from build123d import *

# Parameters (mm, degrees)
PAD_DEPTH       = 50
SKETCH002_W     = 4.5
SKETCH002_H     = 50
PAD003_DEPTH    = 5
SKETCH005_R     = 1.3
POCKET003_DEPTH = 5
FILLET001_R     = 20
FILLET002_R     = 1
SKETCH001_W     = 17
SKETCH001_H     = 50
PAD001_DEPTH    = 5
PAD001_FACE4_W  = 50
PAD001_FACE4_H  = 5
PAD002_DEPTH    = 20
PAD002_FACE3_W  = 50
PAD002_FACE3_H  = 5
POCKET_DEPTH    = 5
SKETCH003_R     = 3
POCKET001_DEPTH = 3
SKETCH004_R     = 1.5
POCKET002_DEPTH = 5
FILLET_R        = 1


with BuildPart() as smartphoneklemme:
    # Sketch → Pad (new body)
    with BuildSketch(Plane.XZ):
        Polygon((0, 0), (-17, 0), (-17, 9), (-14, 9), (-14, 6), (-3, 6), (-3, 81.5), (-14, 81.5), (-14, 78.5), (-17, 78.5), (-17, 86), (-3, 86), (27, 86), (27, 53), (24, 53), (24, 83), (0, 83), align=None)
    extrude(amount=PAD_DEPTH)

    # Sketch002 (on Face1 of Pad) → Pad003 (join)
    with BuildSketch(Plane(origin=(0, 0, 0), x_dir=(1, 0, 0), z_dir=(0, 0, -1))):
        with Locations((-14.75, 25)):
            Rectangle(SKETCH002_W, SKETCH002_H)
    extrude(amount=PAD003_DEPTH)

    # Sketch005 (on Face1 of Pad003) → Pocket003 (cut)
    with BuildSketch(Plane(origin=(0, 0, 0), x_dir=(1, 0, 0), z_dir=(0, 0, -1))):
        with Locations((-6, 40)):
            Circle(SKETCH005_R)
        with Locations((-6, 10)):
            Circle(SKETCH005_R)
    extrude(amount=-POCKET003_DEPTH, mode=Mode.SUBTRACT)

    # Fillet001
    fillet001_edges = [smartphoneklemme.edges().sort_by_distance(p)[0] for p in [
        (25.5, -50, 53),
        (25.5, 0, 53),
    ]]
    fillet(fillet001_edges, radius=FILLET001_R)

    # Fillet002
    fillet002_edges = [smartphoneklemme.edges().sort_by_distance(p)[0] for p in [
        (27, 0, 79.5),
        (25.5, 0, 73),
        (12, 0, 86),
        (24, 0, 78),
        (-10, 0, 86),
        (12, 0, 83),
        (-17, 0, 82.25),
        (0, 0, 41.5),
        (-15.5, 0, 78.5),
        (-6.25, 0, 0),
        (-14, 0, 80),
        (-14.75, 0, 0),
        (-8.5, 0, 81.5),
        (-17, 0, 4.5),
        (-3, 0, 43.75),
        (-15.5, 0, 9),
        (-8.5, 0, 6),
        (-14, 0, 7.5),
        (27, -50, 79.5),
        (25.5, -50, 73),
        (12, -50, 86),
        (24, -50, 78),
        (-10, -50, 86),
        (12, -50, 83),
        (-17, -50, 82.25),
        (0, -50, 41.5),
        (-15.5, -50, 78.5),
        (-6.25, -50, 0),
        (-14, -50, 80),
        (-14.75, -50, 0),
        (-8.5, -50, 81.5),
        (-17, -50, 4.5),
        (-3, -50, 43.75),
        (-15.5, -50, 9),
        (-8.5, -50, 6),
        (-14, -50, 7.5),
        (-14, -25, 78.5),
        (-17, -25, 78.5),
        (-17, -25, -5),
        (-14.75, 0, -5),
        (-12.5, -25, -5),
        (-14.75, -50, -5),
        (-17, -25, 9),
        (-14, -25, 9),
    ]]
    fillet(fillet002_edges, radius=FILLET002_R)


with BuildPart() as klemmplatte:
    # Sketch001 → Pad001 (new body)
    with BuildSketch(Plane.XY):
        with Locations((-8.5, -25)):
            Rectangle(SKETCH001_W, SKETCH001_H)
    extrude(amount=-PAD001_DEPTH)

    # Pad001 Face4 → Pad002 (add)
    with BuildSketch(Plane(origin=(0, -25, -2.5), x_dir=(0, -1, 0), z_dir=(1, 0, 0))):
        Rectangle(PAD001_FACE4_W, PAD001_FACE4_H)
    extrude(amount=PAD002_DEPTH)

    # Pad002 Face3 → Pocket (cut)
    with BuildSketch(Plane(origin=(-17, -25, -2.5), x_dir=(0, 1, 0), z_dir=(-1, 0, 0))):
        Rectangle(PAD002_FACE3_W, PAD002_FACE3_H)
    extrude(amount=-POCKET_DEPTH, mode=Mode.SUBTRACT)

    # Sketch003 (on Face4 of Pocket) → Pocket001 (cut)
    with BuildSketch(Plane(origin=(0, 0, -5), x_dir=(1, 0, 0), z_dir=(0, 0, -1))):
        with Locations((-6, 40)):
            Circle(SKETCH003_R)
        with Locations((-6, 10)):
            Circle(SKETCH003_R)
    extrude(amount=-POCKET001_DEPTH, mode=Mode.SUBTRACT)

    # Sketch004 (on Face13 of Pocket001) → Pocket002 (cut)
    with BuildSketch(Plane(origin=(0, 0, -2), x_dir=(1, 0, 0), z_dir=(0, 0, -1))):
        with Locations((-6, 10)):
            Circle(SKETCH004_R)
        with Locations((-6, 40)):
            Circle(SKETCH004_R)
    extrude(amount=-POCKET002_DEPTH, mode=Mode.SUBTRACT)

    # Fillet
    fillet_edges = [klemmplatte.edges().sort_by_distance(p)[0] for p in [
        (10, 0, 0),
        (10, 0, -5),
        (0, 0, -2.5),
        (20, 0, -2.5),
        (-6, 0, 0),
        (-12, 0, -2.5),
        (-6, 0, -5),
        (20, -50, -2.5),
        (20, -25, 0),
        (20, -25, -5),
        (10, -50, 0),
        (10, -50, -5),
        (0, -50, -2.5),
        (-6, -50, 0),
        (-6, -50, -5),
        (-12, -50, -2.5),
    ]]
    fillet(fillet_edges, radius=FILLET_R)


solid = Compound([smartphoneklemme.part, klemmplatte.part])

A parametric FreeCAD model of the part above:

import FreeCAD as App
import Part
import Sketcher

V = App.Vector
Q = App.Units.Quantity


def edges_at(feature, points):
    """Names of the edges that pass closest to the given points."""
    edges = feature.Shape.Edges
    near = lambda p: min(range(len(edges)), key=lambda i: edges[i].distToShape(Part.Vertex(*p))[0])
    return sorted({f"Edge{near(p) + 1}" for p in points})

doc = App.newDocument("Part")
body = doc.addObject("PartDesign::Body", "Body")

sketch1 = body.newObject("Sketcher::SketchObject", "Sketch")
sketch1.AttachmentSupport = (doc.getObject("XZ_Plane"), [""])
sketch1.MapMode = "FlatFace"
sketch1.addGeometry(Part.LineSegment(V(-17, 0, 0), V(0, 0, 0)), False)
sketch1.addGeometry(Part.LineSegment(V(0, 0, 0), V(0, 83, 0)), False)
sketch1.addGeometry(Part.LineSegment(V(0, 83, 0), V(24, 83, 0)), False)
sketch1.addGeometry(Part.LineSegment(V(24, 83, 0), V(24, 53, 0)), False)
sketch1.addGeometry(Part.LineSegment(V(24, 53, 0), V(27, 53, 0)), False)
sketch1.addGeometry(Part.LineSegment(V(27, 53, 0), V(27, 86, 0)), False)
sketch1.addGeometry(Part.LineSegment(V(27, 86, 0), V(-17, 86, 0)), False)
sketch1.addGeometry(Part.LineSegment(V(-17, 86, 0), V(-17, 78.5, 0)), False)
sketch1.addGeometry(Part.LineSegment(V(-17, 78.5, 0), V(-14, 78.5, 0)), False)
sketch1.addGeometry(Part.LineSegment(V(-14, 78.5, 0), V(-14, 81.5, 0)), False)
sketch1.addGeometry(Part.LineSegment(V(-14, 81.5, 0), V(-3, 81.5, 0)), False)
sketch1.addGeometry(Part.LineSegment(V(-3, 81.5, 0), V(-3, 6, 0)), False)
sketch1.addGeometry(Part.LineSegment(V(-3, 6, 0), V(-14, 6, 0)), False)
sketch1.addGeometry(Part.LineSegment(V(-14, 6, 0), V(-14, 9, 0)), False)
sketch1.addGeometry(Part.LineSegment(V(-14, 9, 0), V(-17, 9, 0)), False)
sketch1.addGeometry(Part.LineSegment(V(-17, 9, 0), V(-17, 0, 0)), False)
sketch1.addConstraint(Sketcher.Constraint("Coincident", 0, 2, 1, 1))
sketch1.addConstraint(Sketcher.Constraint("Coincident", 1, 2, 2, 1))
sketch1.addConstraint(Sketcher.Constraint("Coincident", 2, 2, 3, 1))
sketch1.addConstraint(Sketcher.Constraint("Coincident", 3, 2, 4, 1))
sketch1.addConstraint(Sketcher.Constraint("Coincident", 4, 2, 5, 1))
sketch1.addConstraint(Sketcher.Constraint("Coincident", 5, 2, 6, 1))
sketch1.addConstraint(Sketcher.Constraint("Coincident", 6, 2, 7, 1))
sketch1.addConstraint(Sketcher.Constraint("Coincident", 7, 2, 8, 1))
sketch1.addConstraint(Sketcher.Constraint("Coincident", 8, 2, 9, 1))
sketch1.addConstraint(Sketcher.Constraint("Coincident", 9, 2, 10, 1))
sketch1.addConstraint(Sketcher.Constraint("Coincident", 10, 2, 11, 1))
sketch1.addConstraint(Sketcher.Constraint("Coincident", 11, 2, 12, 1))
sketch1.addConstraint(Sketcher.Constraint("Coincident", 12, 2, 13, 1))
sketch1.addConstraint(Sketcher.Constraint("Coincident", 13, 2, 14, 1))
sketch1.addConstraint(Sketcher.Constraint("Coincident", 14, 2, 15, 1))
sketch1.addConstraint(Sketcher.Constraint("Coincident", 15, 2, 0, 1))
sketch1.addConstraint(Sketcher.Constraint("Horizontal", 0))
sketch1.addConstraint(Sketcher.Constraint("Vertical", 1))
sketch1.addConstraint(Sketcher.Constraint("Horizontal", 2))
sketch1.addConstraint(Sketcher.Constraint("Vertical", 3))
sketch1.addConstraint(Sketcher.Constraint("Horizontal", 4))
sketch1.addConstraint(Sketcher.Constraint("Vertical", 5))
sketch1.addConstraint(Sketcher.Constraint("Horizontal", 6))
sketch1.addConstraint(Sketcher.Constraint("Vertical", 7))
sketch1.addConstraint(Sketcher.Constraint("Horizontal", 8))
sketch1.addConstraint(Sketcher.Constraint("Vertical", 9))
sketch1.addConstraint(Sketcher.Constraint("Horizontal", 10))
sketch1.addConstraint(Sketcher.Constraint("Vertical", 11))
sketch1.addConstraint(Sketcher.Constraint("Horizontal", 12))
sketch1.addConstraint(Sketcher.Constraint("Vertical", 13))
sketch1.addConstraint(Sketcher.Constraint("Horizontal", 14))
sketch1.addConstraint(Sketcher.Constraint("Vertical", 15))
sketch1.addConstraint(Sketcher.Constraint("Coincident", 0, 2, -1, 1))
sketch1.addConstraint(Sketcher.Constraint("Vertical", 9, 2, 12, 2))
sketch1.addConstraint(Sketcher.Constraint("Vertical", 7, 2, 14, 2))
sketch1.addConstraint(Sketcher.Constraint("Equal", 4, 8))
sketch1.addConstraint(Sketcher.Constraint("Equal", 14, 9))
sketch1.addConstraint(Sketcher.Constraint("Equal", 9, 13))
sketch1.addConstraint(Sketcher.Constraint("DistanceX", 0, 1, 0, 2, Q("17 mm")))
sketch1.addConstraint(Sketcher.Constraint("DistanceX", 2, 1, 2, 2, Q("24 mm")))
sketch1.addConstraint(Sketcher.Constraint("DistanceX", 4, 1, 4, 2, Q("3 mm")))
sketch1.addConstraint(Sketcher.Constraint("DistanceX", 10, 1, 10, 2, Q("11 mm")))
sketch1.addConstraint(Sketcher.Constraint("DistanceY", 1, 1, 1, 2, Q("83 mm")))
sketch1.addConstraint(Sketcher.Constraint("DistanceY", 3, 2, 3, 1, Q("30 mm")))
sketch1.addConstraint(Sketcher.Constraint("DistanceY", 5, 1, 5, 2, Q("33 mm")))
sketch1.addConstraint(Sketcher.Constraint("DistanceY", 15, 2, 15, 1, Q("9 mm")))
sketch1.addConstraint(Sketcher.Constraint("DistanceY", 7, 2, 7, 1, Q("7.5 mm")))
pad1 = body.newObject("PartDesign::Pad", "Pad")
pad1.Profile = sketch1
pad1.Length = 50

sketch2 = body.newObject("Sketcher::SketchObject", "Sketch001")
sketch2.AttachmentSupport = (doc.getObject("XY_Plane"), [""])
sketch2.MapMode = "FlatFace"
sketch2.addGeometry(Part.LineSegment(V(-17, -50, 0), V(-17, 0, 0)), False)
sketch2.addGeometry(Part.LineSegment(V(-17, 0, 0), V(-12.5, 0, 0)), False)
sketch2.addGeometry(Part.LineSegment(V(-12.5, 0, 0), V(-12.5, -50, 0)), False)
sketch2.addGeometry(Part.LineSegment(V(-12.5, -50, 0), V(-17, -50, 0)), False)
sketch2.addConstraint(Sketcher.Constraint("Coincident", 0, 2, 1, 1))
sketch2.addConstraint(Sketcher.Constraint("Coincident", 1, 2, 2, 1))
sketch2.addConstraint(Sketcher.Constraint("Coincident", 2, 2, 3, 1))
sketch2.addConstraint(Sketcher.Constraint("Coincident", 3, 2, 0, 1))
sketch2.addConstraint(Sketcher.Constraint("Vertical", 0))
sketch2.addConstraint(Sketcher.Constraint("Horizontal", 1))
sketch2.addConstraint(Sketcher.Constraint("Vertical", 2))
sketch2.addConstraint(Sketcher.Constraint("Horizontal", 3))
sketch2.addConstraint(Sketcher.Constraint("PointOnObject", 0, 2, -1))
sketch2.addConstraint(Sketcher.Constraint("DistanceY", 0, 1, 0, 2, Q("50 mm")))
sketch2.addConstraint(Sketcher.Constraint("DistanceX", 1, 1, 1, 2, Q("4.5 mm")))
sketch2.addConstraint(Sketcher.Constraint("DistanceX", 0, 2, -1, 1, Q("17 mm")))
pad2 = body.newObject("PartDesign::Pad", "Pad001")
pad2.Profile = sketch2
pad2.Length = 5
pad2.Reversed = True

sketch3 = body.newObject("Sketcher::SketchObject", "Sketch002")
sketch3.AttachmentSupport = (doc.getObject("XY_Plane"), [""])
sketch3.MapMode = "FlatFace"
sketch3.addGeometry(Part.Circle(V(-6, -40, 0), V(0, 0, 1), 1.3), False)
sketch3.addGeometry(Part.Circle(V(-6, -10, 0), V(0, 0, 1), 1.3), False)
sketch3.addConstraint(Sketcher.Constraint("Equal", 0, 1))
sketch3.addConstraint(Sketcher.Constraint("Vertical", 0, 3, 1, 3))
sketch3.addConstraint(Sketcher.Constraint("Diameter", 0, Q("2.6 mm")))
sketch3.addConstraint(Sketcher.Constraint("DistanceX", 0, 3, -1, 1, Q("6 mm")))
sketch3.addConstraint(Sketcher.Constraint("DistanceY", 0, 3, -1, 1, Q("40 mm")))
sketch3.addConstraint(Sketcher.Constraint("DistanceY", 1, 3, -1, 1, Q("10 mm")))
pocket1 = body.newObject("PartDesign::Pocket", "Pocket")
pocket1.Profile = sketch3
pocket1.Length = 5
pocket1.Reversed = True
doc.recompute()

fillet = body.newObject("PartDesign::Fillet", "Fillet")
fillet.Base = (pocket1, edges_at(pocket1, [(25.5, -50, 53), (25.5, 0, 53)]))
fillet.Radius = 20
doc.recompute()

fillet2 = body.newObject("PartDesign::Fillet", "Fillet001")
fillet2.Base = (fillet, edges_at(fillet, [
    (27, 0, 79.5),
    (25.5, 0, 73),
    (5, 0, 86),
    (24, 0, 78),
    (5, 0, 86),
    (12, 0, 83),
    (-17, 0, 82.25),
    (0, 0, 41.5),
    (-15.5, 0, 78.5),
    (-6.25, 0, 0),
    (-14, 0, 80),
    (-6.25, 0, 0),
    (-8.5, 0, 81.5),
    (-17, 0, 2),
    (-3, 0, 43.75),
    (-15.5, 0, 9),
    (-8.5, 0, 6),
    (-14, 0, 7.5),
    (27, -50, 79.5),
    (25.5, -50, 73),
    (5, -50, 86),
    (24, -50, 78),
    (5, -50, 86),
    (12, -50, 83),
    (-17, -50, 82.25),
    (0, -50, 41.5),
    (-15.5, -50, 78.5),
    (-6.25, -50, 0),
    (-14, -50, 80),
    (-6.25, -50, 0),
    (-8.5, -50, 81.5),
    (-17, -50, 2),
    (-3, -50, 43.75),
    (-15.5, -50, 9),
    (-8.5, -50, 6),
    (-14, -50, 7.5),
    (-14, -25, 78.5),
    (-17, -25, 78.5),
    (-17, -25, -5),
    (-14.75, 0, -5),
    (-12.5, -25, -5),
    (-14.75, -50, -5),
    (-17, -25, 9),
    (-14, -25, 9),
]))
fillet2.Radius = 1
body2 = doc.addObject("PartDesign::Body", "Body001")

sketch4 = body2.newObject("Sketcher::SketchObject", "Sketch003")
sketch4.AttachmentSupport = (doc.getObject("XY_Plane001"), [""])
sketch4.MapMode = "FlatFace"
sketch4.addGeometry(Part.LineSegment(V(-17, 0, 0), V(-17, -50, 0)), False)
sketch4.addGeometry(Part.LineSegment(V(-17, -50, 0), V(0, -50, 0)), False)
sketch4.addGeometry(Part.LineSegment(V(0, -50, 0), V(0, 0, 0)), False)
sketch4.addGeometry(Part.LineSegment(V(0, 0, 0), V(-17, 0, 0)), False)
sketch4.addConstraint(Sketcher.Constraint("Coincident", 0, 2, 1, 1))
sketch4.addConstraint(Sketcher.Constraint("Coincident", 1, 2, 2, 1))
sketch4.addConstraint(Sketcher.Constraint("Coincident", 2, 2, 3, 1))
sketch4.addConstraint(Sketcher.Constraint("Coincident", 3, 2, 0, 1))
sketch4.addConstraint(Sketcher.Constraint("Vertical", 0))
sketch4.addConstraint(Sketcher.Constraint("Horizontal", 1))
sketch4.addConstraint(Sketcher.Constraint("Vertical", 2))
sketch4.addConstraint(Sketcher.Constraint("Horizontal", 3))
sketch4.addConstraint(Sketcher.Constraint("Coincident", 2, 2, -1, 1))
sketch4.addConstraint(Sketcher.Constraint("DistanceX", 1, 1, 1, 2, Q("17 mm")))
sketch4.addConstraint(Sketcher.Constraint("DistanceY", 0, 2, 0, 1, Q("50 mm")))
pad3 = body2.newObject("PartDesign::Pad", "Pad002")
pad3.Profile = sketch4
pad3.Length = 5
pad3.Reversed = True

sketch5 = body2.newObject("Sketcher::SketchObject", "Sketch004")
sketch5.AttachmentSupport = (doc.getObject("YZ_Plane001"), [""])
sketch5.MapMode = "FlatFace"
sketch5.addGeometry(Part.LineSegment(V(0, -5, 0), V(0, 0, 0)), False)
sketch5.addGeometry(Part.LineSegment(V(0, 0, 0), V(-50, 0, 0)), False)
sketch5.addGeometry(Part.LineSegment(V(-50, 0, 0), V(-50, -5, 0)), False)
sketch5.addGeometry(Part.LineSegment(V(-50, -5, 0), V(0, -5, 0)), False)
sketch5.addConstraint(Sketcher.Constraint("Coincident", 0, 2, 1, 1))
sketch5.addConstraint(Sketcher.Constraint("Coincident", 1, 2, 2, 1))
sketch5.addConstraint(Sketcher.Constraint("Coincident", 2, 2, 3, 1))
sketch5.addConstraint(Sketcher.Constraint("Coincident", 3, 2, 0, 1))
sketch5.addConstraint(Sketcher.Constraint("Vertical", 0))
sketch5.addConstraint(Sketcher.Constraint("Horizontal", 1))
sketch5.addConstraint(Sketcher.Constraint("Vertical", 2))
sketch5.addConstraint(Sketcher.Constraint("Horizontal", 3))
sketch5.addConstraint(Sketcher.Constraint("Coincident", 0, 2, -1, 1))
sketch5.addConstraint(Sketcher.Constraint("DistanceX", 1, 2, 1, 1, Q("50 mm")))
sketch5.addConstraint(Sketcher.Constraint("DistanceY", 0, 1, 0, 2, Q("5 mm")))
pad4 = body2.newObject("PartDesign::Pad", "Pad003")
pad4.Profile = sketch5
pad4.Length = 20

sketch6 = body2.newObject("Sketcher::SketchObject", "Sketch005")
sketch6.AttachmentSupport = (doc.getObject("YZ_Plane001"), [""])
sketch6.MapMode = "FlatFace"
sketch6.AttachmentOffset = App.Placement(V(0, 0, -17), App.Rotation())
sketch6.addGeometry(Part.LineSegment(V(-50, -5, 0), V(-50, 0, 0)), False)
sketch6.addGeometry(Part.LineSegment(V(-50, 0, 0), V(0, 0, 0)), False)
sketch6.addGeometry(Part.LineSegment(V(0, 0, 0), V(0, -5, 0)), False)
sketch6.addGeometry(Part.LineSegment(V(0, -5, 0), V(-50, -5, 0)), False)
sketch6.addConstraint(Sketcher.Constraint("Coincident", 0, 2, 1, 1))
sketch6.addConstraint(Sketcher.Constraint("Coincident", 1, 2, 2, 1))
sketch6.addConstraint(Sketcher.Constraint("Coincident", 2, 2, 3, 1))
sketch6.addConstraint(Sketcher.Constraint("Coincident", 3, 2, 0, 1))
sketch6.addConstraint(Sketcher.Constraint("Vertical", 0))
sketch6.addConstraint(Sketcher.Constraint("Horizontal", 1))
sketch6.addConstraint(Sketcher.Constraint("Vertical", 2))
sketch6.addConstraint(Sketcher.Constraint("Horizontal", 3))
sketch6.addConstraint(Sketcher.Constraint("Coincident", 1, 2, -1, 1))
sketch6.addConstraint(Sketcher.Constraint("DistanceX", 1, 1, 1, 2, Q("50 mm")))
sketch6.addConstraint(Sketcher.Constraint("DistanceY", 0, 1, 0, 2, Q("5 mm")))
pocket2 = body2.newObject("PartDesign::Pocket", "Pocket001")
pocket2.Profile = sketch6
pocket2.Length = 5
pocket2.Reversed = True

sketch7 = body2.newObject("Sketcher::SketchObject", "Sketch006")
sketch7.AttachmentSupport = (doc.getObject("XY_Plane001"), [""])
sketch7.MapMode = "FlatFace"
sketch7.AttachmentOffset = App.Placement(V(0, 0, -5), App.Rotation())
sketch7.addGeometry(Part.Circle(V(-6, -40, 0), V(0, 0, 1), 3), False)
sketch7.addGeometry(Part.Circle(V(-6, -10, 0), V(0, 0, 1), 3), False)
sketch7.addConstraint(Sketcher.Constraint("Equal", 0, 1))
sketch7.addConstraint(Sketcher.Constraint("Vertical", 0, 3, 1, 3))
sketch7.addConstraint(Sketcher.Constraint("Diameter", 0, Q("6 mm")))
sketch7.addConstraint(Sketcher.Constraint("DistanceX", 0, 3, -1, 1, Q("6 mm")))
sketch7.addConstraint(Sketcher.Constraint("DistanceY", 0, 3, -1, 1, Q("40 mm")))
sketch7.addConstraint(Sketcher.Constraint("DistanceY", 1, 3, -1, 1, Q("10 mm")))
pocket3 = body2.newObject("PartDesign::Pocket", "Pocket002")
pocket3.Profile = sketch7
pocket3.Length = 3
pocket3.Reversed = True

sketch8 = body2.newObject("Sketcher::SketchObject", "Sketch007")
sketch8.AttachmentSupport = (doc.getObject("XY_Plane001"), [""])
sketch8.MapMode = "FlatFace"
sketch8.AttachmentOffset = App.Placement(V(0, 0, -2), App.Rotation())
sketch8.addGeometry(Part.Circle(V(-6, -10, 0), V(0, 0, 1), 1.5), False)
sketch8.addGeometry(Part.Circle(V(-6, -40, 0), V(0, 0, 1), 1.5), False)
sketch8.addConstraint(Sketcher.Constraint("Equal", 0, 1))
sketch8.addConstraint(Sketcher.Constraint("Vertical", 0, 3, 1, 3))
sketch8.addConstraint(Sketcher.Constraint("Diameter", 0, Q("3 mm")))
sketch8.addConstraint(Sketcher.Constraint("DistanceX", 0, 3, -1, 1, Q("6 mm")))
sketch8.addConstraint(Sketcher.Constraint("DistanceY", 0, 3, -1, 1, Q("10 mm")))
sketch8.addConstraint(Sketcher.Constraint("DistanceY", 1, 3, -1, 1, Q("40 mm")))
pocket4 = body2.newObject("PartDesign::Pocket", "Pocket003")
pocket4.Profile = sketch8
pocket4.Length = 5
pocket4.Reversed = True
doc.recompute()

fillet3 = body2.newObject("PartDesign::Fillet", "Fillet002")
fillet3.Base = (pocket4, edges_at(pocket4, [
    (4, 0, 0),
    (4, 0, -5),
    (4, 0, 0),
    (20, 0, -2.5),
    (4, 0, 0),
    (-12, 0, -2.5),
    (4, 0, -5),
    (20, -50, -2.5),
    (20, -25, 0),
    (20, -25, -5),
    (4, -50, 0),
    (4, -50, -5),
    (4, -50, 0),
    (4, -50, 0),
    (4, -50, -5),
    (-12, -50, -2.5),
]))
fillet3.Radius = 1

doc.recompute()
